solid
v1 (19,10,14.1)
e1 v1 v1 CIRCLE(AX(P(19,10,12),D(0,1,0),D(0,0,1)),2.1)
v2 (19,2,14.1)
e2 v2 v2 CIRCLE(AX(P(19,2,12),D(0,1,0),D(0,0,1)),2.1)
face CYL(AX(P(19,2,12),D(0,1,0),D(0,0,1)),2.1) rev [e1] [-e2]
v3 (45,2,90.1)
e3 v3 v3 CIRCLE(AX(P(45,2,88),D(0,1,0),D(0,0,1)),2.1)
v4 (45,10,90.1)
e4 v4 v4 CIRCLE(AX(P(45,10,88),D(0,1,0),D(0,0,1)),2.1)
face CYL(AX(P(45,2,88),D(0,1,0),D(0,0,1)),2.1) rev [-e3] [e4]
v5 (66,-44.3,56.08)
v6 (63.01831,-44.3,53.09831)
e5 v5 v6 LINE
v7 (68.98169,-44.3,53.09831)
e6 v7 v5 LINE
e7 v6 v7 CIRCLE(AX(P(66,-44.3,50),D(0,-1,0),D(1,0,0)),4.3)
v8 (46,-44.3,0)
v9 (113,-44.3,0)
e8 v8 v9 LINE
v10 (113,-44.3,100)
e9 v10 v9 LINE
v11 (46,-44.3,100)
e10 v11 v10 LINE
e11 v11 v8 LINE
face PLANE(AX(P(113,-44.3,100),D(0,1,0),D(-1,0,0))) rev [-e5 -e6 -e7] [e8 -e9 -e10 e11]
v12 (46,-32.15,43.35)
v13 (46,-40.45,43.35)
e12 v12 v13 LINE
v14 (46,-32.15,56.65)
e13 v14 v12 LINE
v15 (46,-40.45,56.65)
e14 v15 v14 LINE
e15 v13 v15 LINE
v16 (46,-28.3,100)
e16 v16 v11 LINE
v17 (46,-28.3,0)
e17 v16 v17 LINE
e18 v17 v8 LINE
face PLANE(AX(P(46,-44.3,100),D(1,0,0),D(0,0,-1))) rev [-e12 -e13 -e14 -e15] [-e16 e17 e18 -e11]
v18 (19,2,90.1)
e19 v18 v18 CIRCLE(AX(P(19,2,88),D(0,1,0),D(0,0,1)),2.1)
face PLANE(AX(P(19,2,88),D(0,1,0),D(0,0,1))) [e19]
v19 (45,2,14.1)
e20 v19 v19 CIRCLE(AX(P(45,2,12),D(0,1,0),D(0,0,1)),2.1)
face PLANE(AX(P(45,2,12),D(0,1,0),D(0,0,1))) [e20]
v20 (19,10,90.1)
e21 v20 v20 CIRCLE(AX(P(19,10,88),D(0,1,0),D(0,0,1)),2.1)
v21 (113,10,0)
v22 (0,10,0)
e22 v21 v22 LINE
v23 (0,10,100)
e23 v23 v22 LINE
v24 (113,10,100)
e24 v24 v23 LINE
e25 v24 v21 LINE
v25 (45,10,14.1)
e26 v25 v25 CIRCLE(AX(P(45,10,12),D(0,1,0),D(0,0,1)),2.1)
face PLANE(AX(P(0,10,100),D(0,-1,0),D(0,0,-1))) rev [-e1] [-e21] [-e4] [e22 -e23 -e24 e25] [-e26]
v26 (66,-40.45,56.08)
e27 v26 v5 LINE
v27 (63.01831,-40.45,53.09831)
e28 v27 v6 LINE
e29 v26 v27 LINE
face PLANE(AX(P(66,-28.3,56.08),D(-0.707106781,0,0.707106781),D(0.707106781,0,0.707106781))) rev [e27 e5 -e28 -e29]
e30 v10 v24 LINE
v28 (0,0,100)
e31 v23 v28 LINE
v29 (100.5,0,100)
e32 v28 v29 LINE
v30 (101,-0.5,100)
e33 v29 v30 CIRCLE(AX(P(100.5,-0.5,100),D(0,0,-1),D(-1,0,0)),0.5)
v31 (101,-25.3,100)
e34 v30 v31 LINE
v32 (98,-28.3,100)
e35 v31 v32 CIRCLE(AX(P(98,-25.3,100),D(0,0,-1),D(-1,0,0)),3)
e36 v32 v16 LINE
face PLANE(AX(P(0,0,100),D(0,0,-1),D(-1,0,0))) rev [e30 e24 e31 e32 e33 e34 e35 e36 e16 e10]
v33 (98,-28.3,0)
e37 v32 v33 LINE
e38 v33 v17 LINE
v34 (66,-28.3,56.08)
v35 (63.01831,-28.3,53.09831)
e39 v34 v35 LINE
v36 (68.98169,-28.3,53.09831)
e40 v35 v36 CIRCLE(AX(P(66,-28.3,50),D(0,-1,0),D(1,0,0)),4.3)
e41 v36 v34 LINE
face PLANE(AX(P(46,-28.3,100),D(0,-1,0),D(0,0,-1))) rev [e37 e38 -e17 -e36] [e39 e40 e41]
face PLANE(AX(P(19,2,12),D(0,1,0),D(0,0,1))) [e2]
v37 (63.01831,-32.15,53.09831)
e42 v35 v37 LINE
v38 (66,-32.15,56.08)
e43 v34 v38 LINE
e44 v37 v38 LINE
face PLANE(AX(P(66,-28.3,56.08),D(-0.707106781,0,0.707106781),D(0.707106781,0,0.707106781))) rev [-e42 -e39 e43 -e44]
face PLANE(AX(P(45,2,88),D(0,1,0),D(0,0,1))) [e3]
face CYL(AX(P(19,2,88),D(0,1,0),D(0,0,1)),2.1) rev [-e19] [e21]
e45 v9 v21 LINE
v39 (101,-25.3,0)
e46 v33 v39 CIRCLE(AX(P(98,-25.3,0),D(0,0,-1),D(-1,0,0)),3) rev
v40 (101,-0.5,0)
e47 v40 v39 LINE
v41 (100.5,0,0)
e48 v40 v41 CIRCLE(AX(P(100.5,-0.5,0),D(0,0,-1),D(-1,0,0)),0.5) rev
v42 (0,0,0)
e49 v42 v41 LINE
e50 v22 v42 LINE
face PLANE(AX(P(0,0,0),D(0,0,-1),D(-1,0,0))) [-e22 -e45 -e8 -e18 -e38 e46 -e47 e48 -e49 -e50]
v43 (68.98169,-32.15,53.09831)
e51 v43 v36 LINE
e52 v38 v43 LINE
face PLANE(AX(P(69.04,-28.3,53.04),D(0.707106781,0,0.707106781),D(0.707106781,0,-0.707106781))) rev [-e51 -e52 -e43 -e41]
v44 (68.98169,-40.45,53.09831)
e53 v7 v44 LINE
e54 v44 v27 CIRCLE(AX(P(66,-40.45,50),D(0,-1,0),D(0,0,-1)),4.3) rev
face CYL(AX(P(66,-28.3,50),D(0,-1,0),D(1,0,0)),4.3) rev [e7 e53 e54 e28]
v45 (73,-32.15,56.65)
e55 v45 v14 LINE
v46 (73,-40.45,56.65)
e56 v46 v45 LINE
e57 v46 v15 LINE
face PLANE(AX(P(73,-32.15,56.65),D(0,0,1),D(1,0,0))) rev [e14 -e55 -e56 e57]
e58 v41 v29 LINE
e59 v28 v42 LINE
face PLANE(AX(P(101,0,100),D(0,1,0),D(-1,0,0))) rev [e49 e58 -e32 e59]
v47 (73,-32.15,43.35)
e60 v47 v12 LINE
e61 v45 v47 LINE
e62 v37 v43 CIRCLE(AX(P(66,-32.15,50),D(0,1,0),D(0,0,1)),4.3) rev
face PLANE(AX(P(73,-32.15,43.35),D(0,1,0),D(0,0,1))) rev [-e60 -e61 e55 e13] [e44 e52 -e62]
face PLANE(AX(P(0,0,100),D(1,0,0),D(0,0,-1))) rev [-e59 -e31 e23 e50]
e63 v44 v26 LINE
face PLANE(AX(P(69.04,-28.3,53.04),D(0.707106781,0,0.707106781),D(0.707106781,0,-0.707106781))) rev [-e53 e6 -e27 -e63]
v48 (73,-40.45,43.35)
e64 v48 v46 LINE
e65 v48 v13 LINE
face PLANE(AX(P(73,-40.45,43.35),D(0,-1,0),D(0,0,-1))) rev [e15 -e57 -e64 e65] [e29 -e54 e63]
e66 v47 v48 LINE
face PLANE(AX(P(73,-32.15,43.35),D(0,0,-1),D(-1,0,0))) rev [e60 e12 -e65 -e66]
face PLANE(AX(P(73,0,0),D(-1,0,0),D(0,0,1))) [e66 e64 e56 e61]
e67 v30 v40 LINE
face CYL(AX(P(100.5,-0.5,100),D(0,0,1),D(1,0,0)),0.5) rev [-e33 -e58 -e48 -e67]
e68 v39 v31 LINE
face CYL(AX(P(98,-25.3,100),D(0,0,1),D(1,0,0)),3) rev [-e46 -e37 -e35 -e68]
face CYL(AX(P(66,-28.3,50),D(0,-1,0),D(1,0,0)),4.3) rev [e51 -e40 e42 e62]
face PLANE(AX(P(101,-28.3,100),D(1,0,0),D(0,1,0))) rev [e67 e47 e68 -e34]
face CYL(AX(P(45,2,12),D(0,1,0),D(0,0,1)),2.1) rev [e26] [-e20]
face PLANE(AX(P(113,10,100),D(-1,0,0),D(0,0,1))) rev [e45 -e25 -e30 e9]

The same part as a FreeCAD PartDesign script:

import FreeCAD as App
import Part
import Sketcher


def edges_at(feature, points):
    """Names of the edges that pass closest to the given points."""
    edges = feature.Shape.Edges
    near = lambda p: min(range(len(edges)), key=lambda i: edges[i].distToShape(Part.Vertex(*p))[0])
    return sorted({f"Edge{near(p) + 1}" for p in points})

doc = App.newDocument("Part")
body = doc.addObject("PartDesign::Body", "Body")

# Sketch on XY plane
sketch1 = body.newObject("Sketcher::SketchObject", "Sketch")
sketch1.AttachmentSupport = (doc.getObject("XY_Plane"), [""])
sketch1.MapMode = "FlatFace"
sketch1.addGeometry([
    Part.LineSegment(App.Vector(0, 10, 0), App.Vector(0, 0, 0)),  # 0
    Part.LineSegment(App.Vector(0, 0, 0), App.Vector(101, 0, 0)),  # 1
    Part.LineSegment(App.Vector(101, 0, 0), App.Vector(101, -28, 0)),  # 2
    Part.LineSegment(App.Vector(101, -28, 0), App.Vector(46, -28, 0)),  # 3
    Part.LineSegment(App.Vector(46, -28, 0), App.Vector(46, -44, 0)),  # 4
    Part.LineSegment(App.Vector(46, -44, 0), App.Vector(113, -44, 0)),  # 5
    Part.LineSegment(App.Vector(113, -44, 0), App.Vector(113, 10, 0)),  # 6
    Part.LineSegment(App.Vector(113, 10, 0), App.Vector(0, 10, 0)),  # 7
], False)
sketch1.addConstraint([
    Sketcher.Constraint("Coincident", 0, 2, 1, 1),
    Sketcher.Constraint("Coincident", 1, 2, 2, 1),
    Sketcher.Constraint("Coincident", 2, 2, 3, 1),
    Sketcher.Constraint("Coincident", 3, 2, 4, 1),
    Sketcher.Constraint("Coincident", 4, 2, 5, 1),
    Sketcher.Constraint("Coincident", 5, 2, 6, 1),
    Sketcher.Constraint("Coincident", 6, 2, 7, 1),
    Sketcher.Constraint("Coincident", 7, 2, 0, 1),
    Sketcher.Constraint("Vertical", 0),
    Sketcher.Constraint("Horizontal", 1),
    Sketcher.Constraint("Vertical", 2),
    Sketcher.Constraint("Horizontal", 3),
    Sketcher.Constraint("Vertical", 4),
    Sketcher.Constraint("Horizontal", 5),
    Sketcher.Constraint("Vertical", 6),
    Sketcher.Constraint("Horizontal", 7),
    Sketcher.Constraint("Coincident", 0, 2, -1, 1),
    Sketcher.Constraint("DistanceX", 1, 1, 1, 2, 101.0),
    Sketcher.Constraint("DistanceX", 3, 2, 3, 1, 55.0),
    Sketcher.Constraint("DistanceX", 5, 1, 5, 2, 67.0),
    Sketcher.Constraint("DistanceY", 0, 2, 0, 1, 10.0),
    Sketcher.Constraint("DistanceY", 4, 2, 4, 1, 16.0),
    Sketcher.Constraint("DistanceY", 2, 2, 2, 1, 28.3),
])
pad1 = body.newObject("PartDesign::Pad", "Pad")
pad1.Profile = sketch1
pad1.Length = 100

# Sketch on XZ plane
sketch2 = body.newObject("Sketcher::SketchObject", "Sketch001")
sketch2.AttachmentSupport = (doc.getObject("XZ_Plane"), [""])
sketch2.MapMode = "FlatFace"
sketch2.AttachmentOffset = App.Placement(App.Vector(0, 0, 44.3), App.Rotation())
sketch2.addGeometry(Part.Circle(App.Vector(66, 50, 0), App.Vector(0, 0, 1), 4.3), False)
sketch2.addConstraint([
    Sketcher.Constraint("Diameter", 0, 8.6),
    Sketcher.Constraint("DistanceX", -1, 1, 0, 3, 66.0),
    Sketcher.Constraint("DistanceY", -1, 1, 0, 3, 50.0),
])
pocket1 = body.newObject("PartDesign::Pocket", "Pocket")
pocket1.Profile = sketch2
pocket1.Length = 16

# Sketch on YZ plane
sketch3 = body.newObject("Sketcher::SketchObject", "Sketch002")
sketch3.AttachmentSupport = (doc.getObject("YZ_Plane"), [""])
sketch3.MapMode = "FlatFace"
sketch3.AttachmentOffset = App.Placement(App.Vector(0, 0, 46), App.Rotation())
sketch3.addGeometry([
    Part.LineSegment(App.Vector(-32, 43, 0), App.Vector(-40, 43, 0)),
    Part.LineSegment(App.Vector(-40, 43, 0), App.Vector(-40, 57, 0)),
    Part.LineSegment(App.Vector(-40, 57, 0), App.Vector(-32, 57, 0)),
    Part.LineSegment(App.Vector(-32, 57, 0), App.Vector(-32, 43, 0)),
], False)
sketch3.addConstraint([
    Sketcher.Constraint("Coincident", 0, 2, 1, 1),
    Sketcher.Constraint("Coincident", 1, 2, 2, 1),
    Sketcher.Constraint("Coincident", 2, 2, 3, 1),
    Sketcher.Constraint("Coincident", 3, 2, 0, 1),
    Sketcher.Constraint("Horizontal", 0),
    Sketcher.Constraint("Vertical", 1),
    Sketcher.Constraint("Horizontal", 2),
    Sketcher.Constraint("Vertical", 3),
    Sketcher.Constraint("DistanceX", 0, 2, 0, 1, 8.3),
    Sketcher.Constraint("DistanceY", 1, 1, 1, 2, 13.3),
    Sketcher.Constraint("DistanceX", 0, 2, -1, 1, 40.45),
    Sketcher.Constraint("DistanceY", -1, 1, 0, 2, 43.35),
])
pocket2 = body.newObject("PartDesign::Pocket", "Pocket001")
pocket2.Profile = sketch3
pocket2.Length = 27
pocket2.Reversed = True

# Sketch on XZ plane
sketch4 = body.newObject("Sketcher::SketchObject", "Sketch003")
sketch4.AttachmentSupport = (doc.getObject("XZ_Plane"), [""])
sketch4.MapMode = "FlatFace"
sketch4.AttachmentOffset = App.Placement(App.Vector(0, 0, -10), App.Rotation())
sketch4.addGeometry([
    Part.Circle(App.Vector(19, 12, 0), App.Vector(0, 0, 1), 2.1),
    Part.Circle(App.Vector(19, 88, 0), App.Vector(0, 0, 1), 2.1),
    Part.Circle(App.Vector(45, 12, 0), App.Vector(0, 0, 1), 2.1),
    Part.Circle(App.Vector(45, 88, 0), App.Vector(0, 0, 1), 2.1),
], False)
sketch4.addConstraint([
    Sketcher.Constraint("Equal", 0, 1),
    Sketcher.Constraint("Equal", 1, 2),
    Sketcher.Constraint("Equal", 2, 3),
    Sketcher.Constraint("Horizontal", 0, 3, 2, 3),
    Sketcher.Constraint("Horizontal", 1, 3, 3, 3),
    Sketcher.Constraint("Vertical", 0, 3, 1, 3),
    Sketcher.Constraint("Vertical", 2, 3, 3, 3),
    Sketcher.Constraint("Diameter", 0, 4.2),
    Sketcher.Constraint("DistanceX", -1, 1, 0, 3, 19.0),
    Sketcher.Constraint("DistanceY", -1, 1, 0, 3, 12.0),
    Sketcher.Constraint("DistanceY", -1, 1, 1, 3, 88.0),
    Sketcher.Constraint("DistanceX", -1, 1, 2, 3, 45.0),
])
pocket3 = body.newObject("PartDesign::Pocket", "Pocket002")
pocket3.Profile = sketch4
pocket3.Length = 8
pocket3.Reversed = True

# Sketch on XZ plane
sketch5 = body.newObject("Sketcher::SketchObject", "Sketch004")
sketch5.AttachmentSupport = (doc.getObject("XZ_Plane"), [""])
sketch5.MapMode = "FlatFace"
sketch5.AttachmentOffset = App.Placement(App.Vector(0, 0, 44.3), App.Rotation())
sketch5.addGeometry([
    Part.LineSegment(App.Vector(66, 56.1, 0), App.Vector(63, 53, 0)),
    Part.LineSegment(App.Vector(63, 53, 0), App.Vector(66, 50, 0)),
    Part.LineSegment(App.Vector(66, 50, 0), App.Vector(69, 53, 0)),
    Part.LineSegment(App.Vector(69, 53, 0), App.Vector(66, 56.1, 0)),
], False)
sketch5.addConstraint([
    Sketcher.Constraint("Coincident", 0, 2, 1, 1),
    Sketcher.Constraint("Coincident", 1, 2, 2, 1),
    Sketcher.Constraint("Coincident", 2, 2, 3, 1),
    Sketcher.Constraint("Coincident", 3, 2, 0, 1),
    Sketcher.Constraint("Perpendicular", 0, 1),
    Sketcher.Constraint("Perpendicular", 1, 2),
    Sketcher.Constraint("Perpendicular", 2, 3),
    Sketcher.Constraint("Horizontal", 0, 2, 2, 2),
    Sketcher.Constraint("Vertical", 1, 2, 3, 2),
    Sketcher.Constraint("DistanceX", -1, 1, 1, 2, 66.0),
    Sketcher.Constraint("DistanceY", -1, 1, 1, 2, 50.0),
    Sketcher.Constraint("DistanceX", -1, 1, 0, 2, 62.96),
])
pocket4 = body.newObject("PartDesign::Pocket", "Pocket003")
pocket4.Profile = sketch5
pocket4.Length = 16
doc.recompute()

fillet = body.newObject("PartDesign::Fillet", "Fillet")
fillet.Base = (pocket4, edges_at(pocket4, [(101, -28.3, 50)]))
fillet.Radius = 3
doc.recompute()

fillet2 = body.newObject("PartDesign::Fillet", "Fillet001")
fillet2.Base = (fillet, edges_at(fillet, [(101, 0, 50)]))
fillet2.Radius = 0.5

doc.recompute()
